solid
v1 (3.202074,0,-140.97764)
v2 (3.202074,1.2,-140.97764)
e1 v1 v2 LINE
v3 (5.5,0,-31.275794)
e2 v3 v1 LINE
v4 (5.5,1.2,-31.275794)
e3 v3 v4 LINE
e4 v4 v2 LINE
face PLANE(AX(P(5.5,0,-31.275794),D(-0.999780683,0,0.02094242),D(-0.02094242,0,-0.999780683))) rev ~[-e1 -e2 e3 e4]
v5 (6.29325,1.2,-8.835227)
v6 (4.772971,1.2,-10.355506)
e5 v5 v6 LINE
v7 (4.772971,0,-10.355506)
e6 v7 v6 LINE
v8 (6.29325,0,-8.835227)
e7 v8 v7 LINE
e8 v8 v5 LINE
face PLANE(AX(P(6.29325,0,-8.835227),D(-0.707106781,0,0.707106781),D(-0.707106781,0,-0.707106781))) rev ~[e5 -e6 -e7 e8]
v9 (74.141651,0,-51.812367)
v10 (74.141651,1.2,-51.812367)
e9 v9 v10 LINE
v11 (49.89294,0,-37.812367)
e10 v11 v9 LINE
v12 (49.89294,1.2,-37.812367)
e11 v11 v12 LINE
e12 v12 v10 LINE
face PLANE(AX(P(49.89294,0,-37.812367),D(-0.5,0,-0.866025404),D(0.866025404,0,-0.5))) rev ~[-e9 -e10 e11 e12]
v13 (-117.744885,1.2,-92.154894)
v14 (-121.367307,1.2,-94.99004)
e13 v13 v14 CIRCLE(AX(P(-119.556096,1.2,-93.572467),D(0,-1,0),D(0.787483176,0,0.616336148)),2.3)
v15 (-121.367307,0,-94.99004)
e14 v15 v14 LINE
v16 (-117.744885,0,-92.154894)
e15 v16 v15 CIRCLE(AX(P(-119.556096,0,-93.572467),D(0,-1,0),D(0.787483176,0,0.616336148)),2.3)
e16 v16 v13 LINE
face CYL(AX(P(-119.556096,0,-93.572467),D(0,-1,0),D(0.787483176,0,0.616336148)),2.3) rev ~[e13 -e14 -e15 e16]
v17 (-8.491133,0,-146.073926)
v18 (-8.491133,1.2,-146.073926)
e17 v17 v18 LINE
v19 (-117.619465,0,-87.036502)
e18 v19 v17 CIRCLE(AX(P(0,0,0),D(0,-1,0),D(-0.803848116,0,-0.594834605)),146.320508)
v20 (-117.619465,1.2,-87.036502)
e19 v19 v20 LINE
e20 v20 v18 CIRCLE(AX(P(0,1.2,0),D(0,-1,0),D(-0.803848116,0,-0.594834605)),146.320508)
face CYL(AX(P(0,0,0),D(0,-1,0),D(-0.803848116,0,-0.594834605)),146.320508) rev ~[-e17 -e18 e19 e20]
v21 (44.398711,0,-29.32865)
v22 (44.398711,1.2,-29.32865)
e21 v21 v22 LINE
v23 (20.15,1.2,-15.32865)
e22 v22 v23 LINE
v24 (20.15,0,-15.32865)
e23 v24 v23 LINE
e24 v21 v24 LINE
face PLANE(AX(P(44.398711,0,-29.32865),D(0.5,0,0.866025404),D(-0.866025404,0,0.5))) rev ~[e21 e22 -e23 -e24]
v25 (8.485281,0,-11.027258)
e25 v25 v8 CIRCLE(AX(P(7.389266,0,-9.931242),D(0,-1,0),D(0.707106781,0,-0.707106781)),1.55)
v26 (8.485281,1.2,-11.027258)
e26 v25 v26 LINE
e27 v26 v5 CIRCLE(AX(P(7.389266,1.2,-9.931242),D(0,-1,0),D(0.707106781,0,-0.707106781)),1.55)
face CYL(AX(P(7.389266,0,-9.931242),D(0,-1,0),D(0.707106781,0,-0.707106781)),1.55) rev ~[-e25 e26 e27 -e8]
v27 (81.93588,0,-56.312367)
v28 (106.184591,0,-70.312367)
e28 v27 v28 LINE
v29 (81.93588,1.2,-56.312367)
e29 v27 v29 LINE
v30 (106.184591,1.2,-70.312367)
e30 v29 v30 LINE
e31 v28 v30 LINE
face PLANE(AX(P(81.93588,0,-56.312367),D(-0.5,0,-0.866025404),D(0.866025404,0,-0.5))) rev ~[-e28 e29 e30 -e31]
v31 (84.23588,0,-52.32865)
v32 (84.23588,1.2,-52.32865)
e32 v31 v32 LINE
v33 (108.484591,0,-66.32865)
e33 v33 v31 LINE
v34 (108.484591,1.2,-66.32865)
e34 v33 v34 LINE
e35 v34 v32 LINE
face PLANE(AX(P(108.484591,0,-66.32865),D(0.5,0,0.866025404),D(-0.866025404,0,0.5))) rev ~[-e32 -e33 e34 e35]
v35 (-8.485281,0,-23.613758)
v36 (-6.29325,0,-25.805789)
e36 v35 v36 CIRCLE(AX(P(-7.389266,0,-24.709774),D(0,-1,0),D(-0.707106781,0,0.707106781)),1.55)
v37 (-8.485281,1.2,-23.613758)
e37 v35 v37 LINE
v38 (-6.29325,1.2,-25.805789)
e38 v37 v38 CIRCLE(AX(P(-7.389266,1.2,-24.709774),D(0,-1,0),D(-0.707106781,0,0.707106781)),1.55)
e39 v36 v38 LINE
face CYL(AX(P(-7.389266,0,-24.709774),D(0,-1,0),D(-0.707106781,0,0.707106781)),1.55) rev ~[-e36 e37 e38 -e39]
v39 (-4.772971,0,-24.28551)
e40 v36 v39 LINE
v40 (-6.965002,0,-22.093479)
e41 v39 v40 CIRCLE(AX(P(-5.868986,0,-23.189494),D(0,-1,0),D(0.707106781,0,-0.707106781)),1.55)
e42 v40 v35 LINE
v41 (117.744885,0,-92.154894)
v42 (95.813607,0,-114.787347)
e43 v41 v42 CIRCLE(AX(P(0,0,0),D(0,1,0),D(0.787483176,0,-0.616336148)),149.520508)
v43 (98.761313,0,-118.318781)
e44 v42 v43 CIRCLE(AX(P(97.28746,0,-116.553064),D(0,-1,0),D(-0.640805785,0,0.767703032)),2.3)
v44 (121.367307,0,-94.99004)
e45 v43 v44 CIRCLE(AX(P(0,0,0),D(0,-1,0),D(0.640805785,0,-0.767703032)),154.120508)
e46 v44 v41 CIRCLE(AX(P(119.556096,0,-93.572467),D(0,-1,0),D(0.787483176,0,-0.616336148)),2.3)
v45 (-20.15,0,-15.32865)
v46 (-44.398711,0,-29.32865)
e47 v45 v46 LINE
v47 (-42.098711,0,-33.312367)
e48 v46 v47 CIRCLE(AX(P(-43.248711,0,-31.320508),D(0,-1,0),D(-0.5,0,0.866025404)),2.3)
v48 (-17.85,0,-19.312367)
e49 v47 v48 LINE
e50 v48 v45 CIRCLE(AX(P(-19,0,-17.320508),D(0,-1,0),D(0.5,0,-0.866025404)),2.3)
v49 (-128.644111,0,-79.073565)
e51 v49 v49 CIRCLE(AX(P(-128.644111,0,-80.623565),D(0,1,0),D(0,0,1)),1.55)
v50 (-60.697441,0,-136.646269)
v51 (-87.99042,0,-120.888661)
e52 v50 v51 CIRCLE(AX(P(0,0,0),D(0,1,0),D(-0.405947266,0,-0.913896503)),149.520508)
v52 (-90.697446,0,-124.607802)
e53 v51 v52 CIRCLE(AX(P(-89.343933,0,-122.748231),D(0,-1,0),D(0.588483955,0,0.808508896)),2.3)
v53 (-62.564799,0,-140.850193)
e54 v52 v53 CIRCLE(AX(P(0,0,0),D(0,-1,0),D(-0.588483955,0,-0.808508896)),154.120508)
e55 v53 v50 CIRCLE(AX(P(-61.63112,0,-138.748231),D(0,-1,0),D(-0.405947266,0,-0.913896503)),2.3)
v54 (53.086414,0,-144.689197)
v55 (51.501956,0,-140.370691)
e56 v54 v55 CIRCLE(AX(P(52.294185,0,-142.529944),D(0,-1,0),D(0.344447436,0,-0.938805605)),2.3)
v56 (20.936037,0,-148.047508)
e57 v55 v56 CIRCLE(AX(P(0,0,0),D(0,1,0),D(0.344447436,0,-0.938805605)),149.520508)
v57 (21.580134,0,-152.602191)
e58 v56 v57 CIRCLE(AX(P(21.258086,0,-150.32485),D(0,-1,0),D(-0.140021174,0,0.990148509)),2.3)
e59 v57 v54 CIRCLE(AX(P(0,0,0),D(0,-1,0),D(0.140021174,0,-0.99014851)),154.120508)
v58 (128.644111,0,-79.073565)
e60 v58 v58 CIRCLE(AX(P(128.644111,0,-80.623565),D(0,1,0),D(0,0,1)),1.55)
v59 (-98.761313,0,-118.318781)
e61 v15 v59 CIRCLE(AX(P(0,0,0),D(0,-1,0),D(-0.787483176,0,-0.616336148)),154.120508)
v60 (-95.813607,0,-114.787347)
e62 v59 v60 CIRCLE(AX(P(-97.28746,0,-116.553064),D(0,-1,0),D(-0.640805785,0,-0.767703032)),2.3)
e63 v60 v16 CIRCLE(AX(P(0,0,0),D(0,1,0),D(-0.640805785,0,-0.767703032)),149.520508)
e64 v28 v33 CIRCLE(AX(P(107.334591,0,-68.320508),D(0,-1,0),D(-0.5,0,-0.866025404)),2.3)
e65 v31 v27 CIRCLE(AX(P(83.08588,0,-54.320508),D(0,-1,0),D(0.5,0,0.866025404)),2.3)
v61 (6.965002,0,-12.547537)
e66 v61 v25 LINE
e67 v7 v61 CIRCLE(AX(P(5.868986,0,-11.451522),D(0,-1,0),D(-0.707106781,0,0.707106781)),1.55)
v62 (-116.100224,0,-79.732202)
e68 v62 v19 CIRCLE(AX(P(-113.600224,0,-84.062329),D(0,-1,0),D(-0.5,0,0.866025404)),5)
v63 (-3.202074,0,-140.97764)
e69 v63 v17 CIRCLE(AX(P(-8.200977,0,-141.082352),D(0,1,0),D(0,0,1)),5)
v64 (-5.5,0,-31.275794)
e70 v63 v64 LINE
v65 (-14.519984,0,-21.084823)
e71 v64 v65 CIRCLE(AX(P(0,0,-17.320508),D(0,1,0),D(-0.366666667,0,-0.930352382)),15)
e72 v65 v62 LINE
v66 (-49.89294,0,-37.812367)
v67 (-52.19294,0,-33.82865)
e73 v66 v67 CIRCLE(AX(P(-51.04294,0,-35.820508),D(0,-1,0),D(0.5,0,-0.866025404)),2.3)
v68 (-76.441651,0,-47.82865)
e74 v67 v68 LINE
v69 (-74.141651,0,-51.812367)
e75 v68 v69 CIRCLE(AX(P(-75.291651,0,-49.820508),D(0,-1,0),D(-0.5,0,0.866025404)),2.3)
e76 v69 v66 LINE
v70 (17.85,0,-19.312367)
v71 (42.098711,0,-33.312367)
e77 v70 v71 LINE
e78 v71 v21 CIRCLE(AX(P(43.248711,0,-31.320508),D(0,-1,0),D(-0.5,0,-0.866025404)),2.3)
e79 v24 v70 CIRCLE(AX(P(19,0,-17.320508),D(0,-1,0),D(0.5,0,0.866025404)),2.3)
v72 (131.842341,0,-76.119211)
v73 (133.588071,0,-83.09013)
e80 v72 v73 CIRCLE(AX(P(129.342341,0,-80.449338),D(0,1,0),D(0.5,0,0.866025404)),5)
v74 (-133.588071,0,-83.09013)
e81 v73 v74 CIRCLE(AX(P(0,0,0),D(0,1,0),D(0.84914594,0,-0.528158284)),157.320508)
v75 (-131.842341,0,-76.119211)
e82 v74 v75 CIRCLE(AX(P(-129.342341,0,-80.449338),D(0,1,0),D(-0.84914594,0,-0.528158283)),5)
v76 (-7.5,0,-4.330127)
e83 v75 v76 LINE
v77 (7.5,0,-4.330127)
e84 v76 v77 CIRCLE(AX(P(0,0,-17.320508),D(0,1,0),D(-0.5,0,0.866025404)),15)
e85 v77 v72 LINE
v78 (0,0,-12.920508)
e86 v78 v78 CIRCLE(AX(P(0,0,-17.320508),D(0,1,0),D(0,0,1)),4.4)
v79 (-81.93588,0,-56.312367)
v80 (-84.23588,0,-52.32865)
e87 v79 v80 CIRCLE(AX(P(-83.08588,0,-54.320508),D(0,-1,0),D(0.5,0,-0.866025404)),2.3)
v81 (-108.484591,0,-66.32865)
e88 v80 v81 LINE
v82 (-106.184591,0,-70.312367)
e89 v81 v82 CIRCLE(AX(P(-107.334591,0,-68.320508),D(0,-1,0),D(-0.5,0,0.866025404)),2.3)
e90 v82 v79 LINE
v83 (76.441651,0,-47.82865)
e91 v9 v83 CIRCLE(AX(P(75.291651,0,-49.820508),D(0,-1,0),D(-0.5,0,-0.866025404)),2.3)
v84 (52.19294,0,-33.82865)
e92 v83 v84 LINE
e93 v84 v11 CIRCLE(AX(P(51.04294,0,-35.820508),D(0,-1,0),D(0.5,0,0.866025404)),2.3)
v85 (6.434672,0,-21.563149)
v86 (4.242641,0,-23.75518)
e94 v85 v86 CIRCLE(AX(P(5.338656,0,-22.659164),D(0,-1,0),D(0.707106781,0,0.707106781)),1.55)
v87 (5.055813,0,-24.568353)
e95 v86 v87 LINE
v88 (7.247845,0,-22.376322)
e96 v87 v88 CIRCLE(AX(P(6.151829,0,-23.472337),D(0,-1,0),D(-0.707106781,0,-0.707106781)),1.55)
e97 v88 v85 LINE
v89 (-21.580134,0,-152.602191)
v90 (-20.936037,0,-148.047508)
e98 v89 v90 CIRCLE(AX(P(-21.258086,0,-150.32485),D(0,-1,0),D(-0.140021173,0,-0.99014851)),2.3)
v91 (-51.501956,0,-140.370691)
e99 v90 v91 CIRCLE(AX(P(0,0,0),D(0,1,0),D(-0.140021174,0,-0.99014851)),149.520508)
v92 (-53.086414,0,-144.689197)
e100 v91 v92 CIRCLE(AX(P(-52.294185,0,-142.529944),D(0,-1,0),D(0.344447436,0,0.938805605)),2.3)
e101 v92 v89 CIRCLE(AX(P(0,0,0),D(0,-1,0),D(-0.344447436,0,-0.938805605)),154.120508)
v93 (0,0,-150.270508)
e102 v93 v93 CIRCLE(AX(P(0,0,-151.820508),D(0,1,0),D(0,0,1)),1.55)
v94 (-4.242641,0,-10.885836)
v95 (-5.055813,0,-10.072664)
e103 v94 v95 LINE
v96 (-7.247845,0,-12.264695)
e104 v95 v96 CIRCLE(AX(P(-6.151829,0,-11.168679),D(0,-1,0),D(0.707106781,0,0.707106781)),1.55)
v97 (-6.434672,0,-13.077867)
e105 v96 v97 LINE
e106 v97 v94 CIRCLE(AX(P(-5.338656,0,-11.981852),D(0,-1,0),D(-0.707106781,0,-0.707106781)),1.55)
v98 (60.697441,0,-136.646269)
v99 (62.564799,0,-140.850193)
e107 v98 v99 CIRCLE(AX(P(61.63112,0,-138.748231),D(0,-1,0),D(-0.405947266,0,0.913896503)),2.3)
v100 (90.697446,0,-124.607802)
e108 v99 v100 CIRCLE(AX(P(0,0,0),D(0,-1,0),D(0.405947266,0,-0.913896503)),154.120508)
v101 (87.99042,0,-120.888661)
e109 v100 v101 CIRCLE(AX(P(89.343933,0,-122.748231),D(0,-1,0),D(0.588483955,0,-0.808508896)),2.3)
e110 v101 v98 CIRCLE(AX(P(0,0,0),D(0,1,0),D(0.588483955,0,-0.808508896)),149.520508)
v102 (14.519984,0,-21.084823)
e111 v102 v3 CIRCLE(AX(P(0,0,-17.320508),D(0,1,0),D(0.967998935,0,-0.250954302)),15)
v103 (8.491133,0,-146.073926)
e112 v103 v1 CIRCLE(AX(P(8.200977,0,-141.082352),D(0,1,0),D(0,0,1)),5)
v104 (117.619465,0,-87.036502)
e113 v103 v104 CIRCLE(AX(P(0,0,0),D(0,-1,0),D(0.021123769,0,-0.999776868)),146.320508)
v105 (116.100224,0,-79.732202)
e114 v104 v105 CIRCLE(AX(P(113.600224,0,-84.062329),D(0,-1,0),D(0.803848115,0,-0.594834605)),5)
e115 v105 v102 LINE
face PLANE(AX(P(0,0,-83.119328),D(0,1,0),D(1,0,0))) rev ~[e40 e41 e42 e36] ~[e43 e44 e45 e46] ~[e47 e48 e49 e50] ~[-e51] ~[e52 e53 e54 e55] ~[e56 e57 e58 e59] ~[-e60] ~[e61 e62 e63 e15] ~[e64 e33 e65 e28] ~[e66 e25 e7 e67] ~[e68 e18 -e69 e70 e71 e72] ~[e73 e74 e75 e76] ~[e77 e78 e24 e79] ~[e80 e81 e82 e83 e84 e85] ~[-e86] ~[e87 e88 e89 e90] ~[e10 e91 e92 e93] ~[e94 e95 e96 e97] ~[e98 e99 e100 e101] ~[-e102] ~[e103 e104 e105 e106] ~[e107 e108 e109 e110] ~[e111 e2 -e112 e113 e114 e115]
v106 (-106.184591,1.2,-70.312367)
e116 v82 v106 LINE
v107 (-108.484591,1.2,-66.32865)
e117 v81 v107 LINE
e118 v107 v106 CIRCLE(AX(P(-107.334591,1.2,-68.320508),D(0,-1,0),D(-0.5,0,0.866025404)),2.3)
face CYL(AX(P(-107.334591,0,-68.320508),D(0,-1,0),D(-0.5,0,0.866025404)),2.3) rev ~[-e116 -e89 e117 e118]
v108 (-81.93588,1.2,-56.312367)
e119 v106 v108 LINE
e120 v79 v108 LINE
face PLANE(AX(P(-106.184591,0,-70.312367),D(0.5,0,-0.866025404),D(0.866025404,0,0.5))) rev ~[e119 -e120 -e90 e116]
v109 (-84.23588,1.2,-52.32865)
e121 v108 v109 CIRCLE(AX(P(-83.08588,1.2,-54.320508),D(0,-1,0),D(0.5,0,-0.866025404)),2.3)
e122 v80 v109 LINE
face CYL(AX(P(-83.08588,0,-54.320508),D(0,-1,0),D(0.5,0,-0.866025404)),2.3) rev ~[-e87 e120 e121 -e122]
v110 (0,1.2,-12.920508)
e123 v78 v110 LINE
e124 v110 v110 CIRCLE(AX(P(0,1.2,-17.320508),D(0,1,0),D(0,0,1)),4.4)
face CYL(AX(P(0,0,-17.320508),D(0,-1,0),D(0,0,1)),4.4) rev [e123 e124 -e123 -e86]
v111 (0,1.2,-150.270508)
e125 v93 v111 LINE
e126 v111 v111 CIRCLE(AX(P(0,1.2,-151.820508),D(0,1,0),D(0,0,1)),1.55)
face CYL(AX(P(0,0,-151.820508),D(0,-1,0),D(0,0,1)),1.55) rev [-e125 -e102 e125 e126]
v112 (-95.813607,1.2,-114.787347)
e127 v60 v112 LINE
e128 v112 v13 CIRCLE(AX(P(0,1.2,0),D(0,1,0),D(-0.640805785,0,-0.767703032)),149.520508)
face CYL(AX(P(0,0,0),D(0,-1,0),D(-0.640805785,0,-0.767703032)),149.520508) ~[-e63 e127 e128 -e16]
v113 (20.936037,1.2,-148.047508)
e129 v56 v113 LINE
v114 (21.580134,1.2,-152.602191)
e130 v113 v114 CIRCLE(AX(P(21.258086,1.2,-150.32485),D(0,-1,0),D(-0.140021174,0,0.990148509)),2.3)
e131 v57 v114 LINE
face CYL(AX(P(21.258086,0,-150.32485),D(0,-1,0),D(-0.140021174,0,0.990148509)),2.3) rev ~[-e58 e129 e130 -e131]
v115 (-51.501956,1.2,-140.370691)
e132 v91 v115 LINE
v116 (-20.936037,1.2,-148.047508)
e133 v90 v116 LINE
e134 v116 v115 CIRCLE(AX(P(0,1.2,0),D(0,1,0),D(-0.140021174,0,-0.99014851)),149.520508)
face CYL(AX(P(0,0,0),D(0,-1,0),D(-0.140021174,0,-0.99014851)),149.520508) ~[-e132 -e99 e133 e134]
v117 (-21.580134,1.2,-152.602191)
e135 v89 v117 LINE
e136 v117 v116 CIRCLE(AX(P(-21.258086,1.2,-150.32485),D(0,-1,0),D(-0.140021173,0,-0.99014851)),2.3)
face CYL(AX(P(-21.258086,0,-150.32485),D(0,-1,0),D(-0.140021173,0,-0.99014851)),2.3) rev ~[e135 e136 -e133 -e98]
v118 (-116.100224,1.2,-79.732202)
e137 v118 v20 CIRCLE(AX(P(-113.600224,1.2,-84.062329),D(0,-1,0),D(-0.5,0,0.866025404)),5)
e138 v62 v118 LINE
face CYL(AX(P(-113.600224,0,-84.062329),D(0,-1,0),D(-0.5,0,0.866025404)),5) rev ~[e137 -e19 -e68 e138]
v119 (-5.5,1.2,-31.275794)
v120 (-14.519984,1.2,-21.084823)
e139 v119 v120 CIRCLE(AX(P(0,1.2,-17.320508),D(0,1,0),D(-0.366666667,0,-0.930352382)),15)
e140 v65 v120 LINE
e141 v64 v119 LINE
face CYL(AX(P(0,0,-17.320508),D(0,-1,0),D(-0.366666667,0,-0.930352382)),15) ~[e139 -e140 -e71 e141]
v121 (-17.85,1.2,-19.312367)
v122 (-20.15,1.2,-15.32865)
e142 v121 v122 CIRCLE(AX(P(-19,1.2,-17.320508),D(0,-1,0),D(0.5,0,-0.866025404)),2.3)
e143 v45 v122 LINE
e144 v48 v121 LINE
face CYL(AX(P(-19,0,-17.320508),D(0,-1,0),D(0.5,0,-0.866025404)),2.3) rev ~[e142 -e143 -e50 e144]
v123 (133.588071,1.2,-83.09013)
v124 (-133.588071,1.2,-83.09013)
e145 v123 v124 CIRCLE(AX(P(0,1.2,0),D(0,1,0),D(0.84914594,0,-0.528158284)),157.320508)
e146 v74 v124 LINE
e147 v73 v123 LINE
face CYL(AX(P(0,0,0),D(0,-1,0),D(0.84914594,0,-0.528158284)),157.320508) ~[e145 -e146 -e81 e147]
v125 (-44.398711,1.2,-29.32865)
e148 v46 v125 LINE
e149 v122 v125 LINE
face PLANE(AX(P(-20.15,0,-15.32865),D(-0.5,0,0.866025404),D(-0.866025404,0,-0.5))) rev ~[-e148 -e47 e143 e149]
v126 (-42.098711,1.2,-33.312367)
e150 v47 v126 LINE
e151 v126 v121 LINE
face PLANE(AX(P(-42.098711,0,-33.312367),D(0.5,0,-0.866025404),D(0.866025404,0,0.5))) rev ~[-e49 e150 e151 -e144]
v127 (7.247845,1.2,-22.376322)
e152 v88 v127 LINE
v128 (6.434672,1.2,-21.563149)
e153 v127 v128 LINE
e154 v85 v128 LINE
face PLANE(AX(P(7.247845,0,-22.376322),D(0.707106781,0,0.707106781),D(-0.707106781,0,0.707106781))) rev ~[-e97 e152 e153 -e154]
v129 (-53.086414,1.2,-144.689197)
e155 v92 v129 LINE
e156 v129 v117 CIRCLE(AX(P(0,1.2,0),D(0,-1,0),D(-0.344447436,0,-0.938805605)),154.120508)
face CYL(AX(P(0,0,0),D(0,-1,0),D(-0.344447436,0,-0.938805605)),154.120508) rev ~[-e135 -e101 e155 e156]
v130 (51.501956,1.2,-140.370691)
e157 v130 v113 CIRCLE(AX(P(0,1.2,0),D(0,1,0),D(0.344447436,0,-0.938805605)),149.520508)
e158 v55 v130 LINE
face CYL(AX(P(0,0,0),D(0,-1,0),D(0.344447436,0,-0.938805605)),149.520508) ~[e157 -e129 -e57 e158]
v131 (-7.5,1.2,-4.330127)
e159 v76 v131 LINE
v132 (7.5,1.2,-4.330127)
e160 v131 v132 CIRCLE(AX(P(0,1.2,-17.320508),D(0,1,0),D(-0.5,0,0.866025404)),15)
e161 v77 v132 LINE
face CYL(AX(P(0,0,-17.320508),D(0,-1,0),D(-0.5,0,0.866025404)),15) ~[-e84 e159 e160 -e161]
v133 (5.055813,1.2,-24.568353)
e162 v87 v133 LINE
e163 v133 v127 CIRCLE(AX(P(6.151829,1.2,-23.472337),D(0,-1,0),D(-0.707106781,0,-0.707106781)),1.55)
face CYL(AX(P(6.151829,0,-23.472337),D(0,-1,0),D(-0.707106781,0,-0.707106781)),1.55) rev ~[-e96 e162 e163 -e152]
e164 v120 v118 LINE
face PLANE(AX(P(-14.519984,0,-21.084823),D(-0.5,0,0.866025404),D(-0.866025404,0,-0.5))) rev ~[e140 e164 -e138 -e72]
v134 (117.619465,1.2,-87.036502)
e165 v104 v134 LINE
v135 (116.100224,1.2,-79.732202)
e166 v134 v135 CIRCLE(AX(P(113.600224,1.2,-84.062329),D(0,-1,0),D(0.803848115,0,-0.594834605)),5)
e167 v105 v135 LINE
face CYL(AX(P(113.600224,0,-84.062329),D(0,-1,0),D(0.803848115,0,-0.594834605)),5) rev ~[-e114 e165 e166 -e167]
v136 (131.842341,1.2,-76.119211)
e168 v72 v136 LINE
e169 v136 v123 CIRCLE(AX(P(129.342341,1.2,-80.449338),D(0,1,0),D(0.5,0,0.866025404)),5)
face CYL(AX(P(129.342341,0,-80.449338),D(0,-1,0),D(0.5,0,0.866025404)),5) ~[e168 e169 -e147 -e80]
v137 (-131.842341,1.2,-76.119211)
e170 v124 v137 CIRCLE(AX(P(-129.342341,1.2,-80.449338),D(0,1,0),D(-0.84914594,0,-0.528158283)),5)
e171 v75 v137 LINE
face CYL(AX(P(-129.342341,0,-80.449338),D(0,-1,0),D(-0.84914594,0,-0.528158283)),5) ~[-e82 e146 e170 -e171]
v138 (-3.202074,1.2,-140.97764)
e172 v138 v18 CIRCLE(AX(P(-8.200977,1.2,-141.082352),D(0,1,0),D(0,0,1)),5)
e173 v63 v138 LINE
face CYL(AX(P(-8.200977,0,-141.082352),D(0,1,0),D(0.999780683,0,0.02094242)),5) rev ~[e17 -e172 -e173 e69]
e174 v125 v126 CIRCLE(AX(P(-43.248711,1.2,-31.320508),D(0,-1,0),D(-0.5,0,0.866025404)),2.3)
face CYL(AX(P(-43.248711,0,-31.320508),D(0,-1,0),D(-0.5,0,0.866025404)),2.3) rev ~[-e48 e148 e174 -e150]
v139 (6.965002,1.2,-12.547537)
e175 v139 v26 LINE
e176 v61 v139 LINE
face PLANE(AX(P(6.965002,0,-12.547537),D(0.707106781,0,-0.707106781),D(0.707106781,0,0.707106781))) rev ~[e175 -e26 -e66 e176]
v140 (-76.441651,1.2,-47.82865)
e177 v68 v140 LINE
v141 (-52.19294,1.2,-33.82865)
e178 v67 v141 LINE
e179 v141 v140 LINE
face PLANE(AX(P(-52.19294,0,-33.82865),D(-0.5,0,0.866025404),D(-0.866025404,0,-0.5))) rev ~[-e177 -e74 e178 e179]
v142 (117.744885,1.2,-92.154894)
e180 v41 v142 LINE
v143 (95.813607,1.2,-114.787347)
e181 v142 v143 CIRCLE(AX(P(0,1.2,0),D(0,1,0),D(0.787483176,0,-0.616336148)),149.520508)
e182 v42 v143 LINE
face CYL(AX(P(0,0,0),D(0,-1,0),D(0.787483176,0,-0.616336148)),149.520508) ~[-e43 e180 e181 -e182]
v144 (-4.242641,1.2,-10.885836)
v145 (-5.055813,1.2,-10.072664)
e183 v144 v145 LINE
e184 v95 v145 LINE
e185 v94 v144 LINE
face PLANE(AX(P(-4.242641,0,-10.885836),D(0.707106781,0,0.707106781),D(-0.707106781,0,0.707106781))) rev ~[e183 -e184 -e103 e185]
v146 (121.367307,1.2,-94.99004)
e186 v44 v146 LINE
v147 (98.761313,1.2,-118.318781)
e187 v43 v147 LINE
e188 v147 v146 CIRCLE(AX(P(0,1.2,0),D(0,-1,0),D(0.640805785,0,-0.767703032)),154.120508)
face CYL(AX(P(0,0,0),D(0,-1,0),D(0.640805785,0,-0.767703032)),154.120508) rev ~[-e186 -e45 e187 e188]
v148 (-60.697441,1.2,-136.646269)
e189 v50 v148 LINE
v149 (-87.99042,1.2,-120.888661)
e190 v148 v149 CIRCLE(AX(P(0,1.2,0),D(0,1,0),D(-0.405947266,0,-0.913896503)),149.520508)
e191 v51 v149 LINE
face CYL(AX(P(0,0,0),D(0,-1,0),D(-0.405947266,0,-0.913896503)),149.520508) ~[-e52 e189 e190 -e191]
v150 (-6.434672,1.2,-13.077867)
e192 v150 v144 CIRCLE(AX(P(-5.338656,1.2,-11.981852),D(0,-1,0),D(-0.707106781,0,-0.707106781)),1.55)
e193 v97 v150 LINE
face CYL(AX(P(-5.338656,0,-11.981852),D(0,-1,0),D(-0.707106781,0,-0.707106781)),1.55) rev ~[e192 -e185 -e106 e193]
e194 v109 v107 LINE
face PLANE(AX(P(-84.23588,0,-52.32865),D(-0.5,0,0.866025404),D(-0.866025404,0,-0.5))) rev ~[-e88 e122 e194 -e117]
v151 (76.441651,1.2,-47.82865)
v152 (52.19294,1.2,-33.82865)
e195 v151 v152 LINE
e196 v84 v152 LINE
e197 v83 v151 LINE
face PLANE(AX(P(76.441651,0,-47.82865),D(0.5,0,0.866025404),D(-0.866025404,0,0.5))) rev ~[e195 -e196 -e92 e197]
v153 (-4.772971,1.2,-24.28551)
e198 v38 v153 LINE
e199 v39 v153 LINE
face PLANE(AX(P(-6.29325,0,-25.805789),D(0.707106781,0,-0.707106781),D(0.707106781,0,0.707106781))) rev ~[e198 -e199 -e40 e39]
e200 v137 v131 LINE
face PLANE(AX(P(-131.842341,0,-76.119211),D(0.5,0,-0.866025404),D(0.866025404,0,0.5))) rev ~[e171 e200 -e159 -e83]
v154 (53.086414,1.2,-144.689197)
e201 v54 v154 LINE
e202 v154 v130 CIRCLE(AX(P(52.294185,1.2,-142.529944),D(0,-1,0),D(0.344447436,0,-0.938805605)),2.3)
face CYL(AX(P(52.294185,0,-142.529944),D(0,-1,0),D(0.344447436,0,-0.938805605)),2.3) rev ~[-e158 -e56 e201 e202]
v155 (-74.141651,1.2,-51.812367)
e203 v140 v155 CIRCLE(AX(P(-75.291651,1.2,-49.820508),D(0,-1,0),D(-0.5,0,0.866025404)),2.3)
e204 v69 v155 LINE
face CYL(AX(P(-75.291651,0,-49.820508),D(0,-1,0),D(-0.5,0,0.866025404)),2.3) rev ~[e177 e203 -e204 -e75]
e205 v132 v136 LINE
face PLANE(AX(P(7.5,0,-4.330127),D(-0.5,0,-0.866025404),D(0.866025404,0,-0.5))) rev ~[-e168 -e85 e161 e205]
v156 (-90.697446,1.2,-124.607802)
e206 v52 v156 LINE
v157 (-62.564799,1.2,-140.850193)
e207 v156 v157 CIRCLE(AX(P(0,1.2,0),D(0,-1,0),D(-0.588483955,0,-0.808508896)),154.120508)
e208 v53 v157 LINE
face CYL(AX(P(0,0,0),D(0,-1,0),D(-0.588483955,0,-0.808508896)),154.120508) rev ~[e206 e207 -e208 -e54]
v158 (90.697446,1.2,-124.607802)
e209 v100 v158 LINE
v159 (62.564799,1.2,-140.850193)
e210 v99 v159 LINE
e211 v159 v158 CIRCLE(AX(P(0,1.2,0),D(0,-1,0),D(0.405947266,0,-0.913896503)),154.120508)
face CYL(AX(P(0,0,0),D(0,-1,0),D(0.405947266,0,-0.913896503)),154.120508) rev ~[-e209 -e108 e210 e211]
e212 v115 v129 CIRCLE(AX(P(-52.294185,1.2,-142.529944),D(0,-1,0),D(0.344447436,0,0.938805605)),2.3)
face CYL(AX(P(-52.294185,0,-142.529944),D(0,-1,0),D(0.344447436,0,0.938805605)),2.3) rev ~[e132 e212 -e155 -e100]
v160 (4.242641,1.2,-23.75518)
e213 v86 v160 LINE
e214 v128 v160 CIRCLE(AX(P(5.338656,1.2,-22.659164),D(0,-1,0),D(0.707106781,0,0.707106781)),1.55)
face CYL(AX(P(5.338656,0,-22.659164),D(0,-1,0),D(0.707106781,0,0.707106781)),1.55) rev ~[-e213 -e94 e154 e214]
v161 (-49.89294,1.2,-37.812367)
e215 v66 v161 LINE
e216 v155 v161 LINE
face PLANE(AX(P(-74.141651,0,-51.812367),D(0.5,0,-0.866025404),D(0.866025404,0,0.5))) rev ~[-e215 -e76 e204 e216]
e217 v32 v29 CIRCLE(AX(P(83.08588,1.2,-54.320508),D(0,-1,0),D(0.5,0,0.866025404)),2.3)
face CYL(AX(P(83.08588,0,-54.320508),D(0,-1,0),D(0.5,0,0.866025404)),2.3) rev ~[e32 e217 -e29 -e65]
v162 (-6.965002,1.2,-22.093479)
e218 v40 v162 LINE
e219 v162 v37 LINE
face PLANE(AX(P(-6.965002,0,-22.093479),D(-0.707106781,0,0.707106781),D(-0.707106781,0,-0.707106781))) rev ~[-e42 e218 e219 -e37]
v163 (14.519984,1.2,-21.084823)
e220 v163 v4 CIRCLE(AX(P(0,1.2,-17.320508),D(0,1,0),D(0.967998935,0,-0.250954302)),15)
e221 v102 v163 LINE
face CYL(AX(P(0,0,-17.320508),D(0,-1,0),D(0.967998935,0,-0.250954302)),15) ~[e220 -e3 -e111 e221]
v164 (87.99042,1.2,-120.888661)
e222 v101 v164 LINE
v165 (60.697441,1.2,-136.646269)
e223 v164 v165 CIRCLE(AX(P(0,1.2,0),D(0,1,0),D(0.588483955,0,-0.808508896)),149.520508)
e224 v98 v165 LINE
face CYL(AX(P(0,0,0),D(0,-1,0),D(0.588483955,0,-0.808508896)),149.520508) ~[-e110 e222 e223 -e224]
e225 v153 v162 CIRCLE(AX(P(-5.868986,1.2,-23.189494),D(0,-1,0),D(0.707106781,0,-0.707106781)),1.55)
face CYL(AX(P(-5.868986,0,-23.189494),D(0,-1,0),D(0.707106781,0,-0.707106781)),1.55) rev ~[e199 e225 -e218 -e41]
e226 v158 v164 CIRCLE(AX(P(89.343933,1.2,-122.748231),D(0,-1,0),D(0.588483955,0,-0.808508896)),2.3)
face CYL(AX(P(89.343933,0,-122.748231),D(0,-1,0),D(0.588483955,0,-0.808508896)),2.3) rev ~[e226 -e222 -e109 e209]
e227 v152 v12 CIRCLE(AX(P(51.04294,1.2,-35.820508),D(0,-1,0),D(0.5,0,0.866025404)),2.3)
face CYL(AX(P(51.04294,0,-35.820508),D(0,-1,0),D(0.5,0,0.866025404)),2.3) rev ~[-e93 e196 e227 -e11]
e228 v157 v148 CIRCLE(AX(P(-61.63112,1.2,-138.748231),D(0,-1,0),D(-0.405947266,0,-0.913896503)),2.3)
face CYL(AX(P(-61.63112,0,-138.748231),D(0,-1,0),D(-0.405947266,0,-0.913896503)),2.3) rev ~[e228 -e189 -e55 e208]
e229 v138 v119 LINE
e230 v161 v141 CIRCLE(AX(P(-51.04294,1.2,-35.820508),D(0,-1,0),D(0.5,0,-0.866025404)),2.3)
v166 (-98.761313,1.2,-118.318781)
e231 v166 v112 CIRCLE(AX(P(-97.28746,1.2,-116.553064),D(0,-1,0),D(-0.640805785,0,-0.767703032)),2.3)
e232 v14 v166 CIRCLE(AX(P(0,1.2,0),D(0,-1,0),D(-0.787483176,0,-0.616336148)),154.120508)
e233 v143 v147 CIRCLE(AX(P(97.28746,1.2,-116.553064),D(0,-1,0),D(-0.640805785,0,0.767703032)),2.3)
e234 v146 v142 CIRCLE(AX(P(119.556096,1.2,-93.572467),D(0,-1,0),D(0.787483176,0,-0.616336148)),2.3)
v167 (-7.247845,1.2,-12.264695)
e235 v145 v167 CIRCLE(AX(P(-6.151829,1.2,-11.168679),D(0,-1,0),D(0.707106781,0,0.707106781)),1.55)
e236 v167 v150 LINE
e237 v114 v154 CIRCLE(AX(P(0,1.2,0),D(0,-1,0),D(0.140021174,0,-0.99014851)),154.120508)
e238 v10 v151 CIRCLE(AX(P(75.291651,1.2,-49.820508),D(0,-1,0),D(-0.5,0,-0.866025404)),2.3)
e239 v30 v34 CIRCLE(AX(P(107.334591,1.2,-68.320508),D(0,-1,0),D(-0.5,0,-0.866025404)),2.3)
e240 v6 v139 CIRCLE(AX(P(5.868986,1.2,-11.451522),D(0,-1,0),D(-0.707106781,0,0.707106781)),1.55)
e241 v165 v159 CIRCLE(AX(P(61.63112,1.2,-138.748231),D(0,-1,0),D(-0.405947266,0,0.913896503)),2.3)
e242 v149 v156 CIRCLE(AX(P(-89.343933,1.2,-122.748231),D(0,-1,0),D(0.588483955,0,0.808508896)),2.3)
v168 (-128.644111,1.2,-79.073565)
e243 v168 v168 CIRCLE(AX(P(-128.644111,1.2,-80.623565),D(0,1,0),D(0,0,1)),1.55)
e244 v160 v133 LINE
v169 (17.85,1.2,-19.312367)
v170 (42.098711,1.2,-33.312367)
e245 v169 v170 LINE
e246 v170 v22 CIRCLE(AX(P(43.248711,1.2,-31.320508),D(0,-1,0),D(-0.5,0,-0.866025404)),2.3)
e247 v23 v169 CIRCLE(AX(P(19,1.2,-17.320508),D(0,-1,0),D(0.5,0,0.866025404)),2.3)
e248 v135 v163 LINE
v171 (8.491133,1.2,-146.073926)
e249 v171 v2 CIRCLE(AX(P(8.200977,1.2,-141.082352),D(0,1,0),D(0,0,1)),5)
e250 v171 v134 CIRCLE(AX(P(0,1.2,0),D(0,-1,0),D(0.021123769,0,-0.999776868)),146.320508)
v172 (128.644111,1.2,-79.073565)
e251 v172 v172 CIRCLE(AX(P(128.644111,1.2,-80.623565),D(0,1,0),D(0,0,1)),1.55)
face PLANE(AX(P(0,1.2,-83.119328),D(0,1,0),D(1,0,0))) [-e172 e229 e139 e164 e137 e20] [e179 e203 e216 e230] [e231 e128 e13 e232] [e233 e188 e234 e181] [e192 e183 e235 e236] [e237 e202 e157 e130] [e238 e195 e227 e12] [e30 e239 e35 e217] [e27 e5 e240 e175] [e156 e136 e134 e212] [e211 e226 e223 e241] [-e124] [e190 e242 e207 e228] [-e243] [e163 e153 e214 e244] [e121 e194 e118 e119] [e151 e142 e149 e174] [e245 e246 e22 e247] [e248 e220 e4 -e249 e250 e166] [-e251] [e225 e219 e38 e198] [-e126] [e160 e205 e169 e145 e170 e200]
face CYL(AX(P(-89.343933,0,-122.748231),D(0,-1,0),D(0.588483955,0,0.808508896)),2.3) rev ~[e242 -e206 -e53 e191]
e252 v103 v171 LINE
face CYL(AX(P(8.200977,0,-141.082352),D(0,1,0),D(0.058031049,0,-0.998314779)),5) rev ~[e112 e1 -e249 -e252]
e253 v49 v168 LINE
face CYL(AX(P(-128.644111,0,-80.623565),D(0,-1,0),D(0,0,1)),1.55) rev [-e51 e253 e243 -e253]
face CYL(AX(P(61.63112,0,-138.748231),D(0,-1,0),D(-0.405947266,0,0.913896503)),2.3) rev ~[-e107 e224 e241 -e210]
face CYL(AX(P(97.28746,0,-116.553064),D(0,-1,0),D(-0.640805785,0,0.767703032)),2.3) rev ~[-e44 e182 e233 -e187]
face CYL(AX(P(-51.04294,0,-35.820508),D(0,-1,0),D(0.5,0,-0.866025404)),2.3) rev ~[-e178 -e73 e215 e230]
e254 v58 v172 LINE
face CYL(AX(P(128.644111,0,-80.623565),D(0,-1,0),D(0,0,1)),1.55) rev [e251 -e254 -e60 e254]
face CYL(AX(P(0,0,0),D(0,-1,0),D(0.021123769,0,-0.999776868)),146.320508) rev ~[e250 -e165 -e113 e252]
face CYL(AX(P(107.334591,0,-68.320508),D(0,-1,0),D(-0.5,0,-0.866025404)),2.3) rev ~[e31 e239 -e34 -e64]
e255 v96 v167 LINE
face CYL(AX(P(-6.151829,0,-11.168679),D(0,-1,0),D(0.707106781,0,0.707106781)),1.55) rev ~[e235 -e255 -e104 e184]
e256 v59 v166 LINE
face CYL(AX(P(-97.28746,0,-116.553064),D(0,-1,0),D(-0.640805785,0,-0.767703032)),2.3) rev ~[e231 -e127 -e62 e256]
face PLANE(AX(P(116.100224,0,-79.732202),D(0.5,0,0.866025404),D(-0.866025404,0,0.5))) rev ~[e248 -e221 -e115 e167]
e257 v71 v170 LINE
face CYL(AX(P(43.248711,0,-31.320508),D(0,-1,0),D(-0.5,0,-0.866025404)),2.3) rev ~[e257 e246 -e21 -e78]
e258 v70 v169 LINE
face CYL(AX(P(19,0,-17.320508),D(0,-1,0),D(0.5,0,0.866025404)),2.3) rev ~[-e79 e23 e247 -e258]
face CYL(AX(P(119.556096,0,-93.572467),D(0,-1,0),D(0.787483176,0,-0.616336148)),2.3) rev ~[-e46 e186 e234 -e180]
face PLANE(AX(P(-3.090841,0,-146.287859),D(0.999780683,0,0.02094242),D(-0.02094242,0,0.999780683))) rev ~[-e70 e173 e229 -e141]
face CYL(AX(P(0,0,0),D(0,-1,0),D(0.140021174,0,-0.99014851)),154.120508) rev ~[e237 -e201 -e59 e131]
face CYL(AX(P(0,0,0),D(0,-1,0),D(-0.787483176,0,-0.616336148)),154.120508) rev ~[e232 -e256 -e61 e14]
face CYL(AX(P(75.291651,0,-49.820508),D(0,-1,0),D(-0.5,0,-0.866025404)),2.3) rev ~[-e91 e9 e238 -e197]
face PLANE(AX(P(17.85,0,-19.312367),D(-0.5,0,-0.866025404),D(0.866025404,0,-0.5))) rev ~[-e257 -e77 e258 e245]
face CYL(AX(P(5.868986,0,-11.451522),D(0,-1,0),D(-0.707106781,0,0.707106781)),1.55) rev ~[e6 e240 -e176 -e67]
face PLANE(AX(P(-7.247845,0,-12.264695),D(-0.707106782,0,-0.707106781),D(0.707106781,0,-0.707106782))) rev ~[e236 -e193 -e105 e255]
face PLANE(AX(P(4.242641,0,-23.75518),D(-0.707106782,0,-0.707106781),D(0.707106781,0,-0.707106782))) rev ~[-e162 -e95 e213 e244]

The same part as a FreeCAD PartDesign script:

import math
import FreeCAD as App
import Part
import Sketcher
from FreeCAD import Vector
Q = App.Units.Quantity


def edges_at(feature, points):
    """Names of the edges that pass closest to the given points."""
    edges = feature.Shape.Edges
    near = lambda p: min(range(len(edges)), key=lambda i: edges[i].distToShape(Part.Vertex(*p))[0])
    return sorted({f"Edge{near(p) + 1}" for p in points})

doc = App.newDocument("Part")
params = doc.addObject("Spreadsheet::Sheet", "Params")
for row, (alias, value) in enumerate([
    ("sketch1_radius", "15 mm"),
    ("sketch1_radius2", "5 mm"),
    ("sketch1_diameter", "3.1 mm"),
    ("sketch1_diameter2", "8.8 mm"),
    ("sketch1_radius3", "2.3 mm"),
    ("pad1_length", "1.2 mm"),
    ("fillet_radius", "5 mm"),
], start=1):
    params.set(f"A{row}", alias)
    params.set(f"B{row}", "=" + value)
    params.setAlias(f"B{row}", alias)

body = doc.addObject("PartDesign::Body", "Body")

sketch1 = doc.addObject("Sketcher::SketchObject", "Sketch")
body.addObject(sketch1)
sketch1.AttachmentSupport = (doc.XZ_Plane, [""])
sketch1.MapMode = "FlatFace"
sketch1.addGeometry([
    Part.ArcOfCircle(Part.Circle(Vector(0, -17.3, 0), Vector(0, 0, 1), 15), math.radians(60), math.radians(120)),
    Part.LineSegment(Vector(7.5, -4.3, 0), Vector(131.8, -76.1, 0)),
    Part.ArcOfCircle(Part.Circle(Vector(129.3, -80.4, 0), Vector(0, 0, 1), 5), math.radians(-32), math.radians(60)),
    Part.ArcOfCircle(Part.Circle(Vector(0, 0, 0), Vector(0, 0, 1), 157.3), math.radians(-148), math.radians(-32)),
    Part.ArcOfCircle(Part.Circle(Vector(-129.3, -80.4, 0), Vector(0, 0, 1), 5), math.radians(120), math.radians(212)),
    Part.LineSegment(Vector(-131.8, -76.1, 0), Vector(-7.5, -4.3, 0)),
    Part.ArcOfCircle(Part.Circle(Vector(-6.2, -11.2, 0), Vector(0, 0, 1), 1.6), math.radians(45), math.radians(225)),
    Part.LineSegment(Vector(-7.2, -12.3, 0), Vector(-6.4, -13.1, 0)),
    Part.ArcOfCircle(Part.Circle(Vector(-5.3, -12, 0), Vector(0, 0, 1), 1.6), math.radians(-135), math.radians(45)),
    Part.LineSegment(Vector(-4.2, -10.9, 0), Vector(-5.1, -10.1, 0)),
    Part.LineSegment(Vector(-20.1, -15.3, 0), Vector(-44.4, -29.3, 0)),
    Part.ArcOfCircle(Part.Circle(Vector(-43.2, -31.3, 0), Vector(0, 0, 1), 2.3), math.radians(120), math.radians(300)),
    Part.LineSegment(Vector(-42.1, -33.3, 0), Vector(-17.9, -19.3, 0)),
    Part.ArcOfCircle(Part.Circle(Vector(-19, -17.3, 0), Vector(0, 0, 1), 2.3), math.radians(-60), math.radians(120)),
    Part.LineSegment(Vector(-7, -22.1, 0), Vector(-8.5, -23.6, 0)),
    Part.ArcOfCircle(Part.Circle(Vector(-7.4, -24.7, 0), Vector(0, 0, 1), 1.6), math.radians(135), math.radians(315)),
    Part.LineSegment(Vector(-6.3, -25.8, 0), Vector(-4.8, -24.3, 0)),
    Part.ArcOfCircle(Part.Circle(Vector(-5.9, -23.2, 0), Vector(0, 0, 1), 1.6), math.radians(-45), math.radians(135)),
    Part.LineSegment(Vector(-52.2, -33.8, 0), Vector(-76.4, -47.8, 0)),
    Part.ArcOfCircle(Part.Circle(Vector(-75.3, -49.8, 0), Vector(0, 0, 1), 2.3), math.radians(120), math.radians(300)),
    Part.LineSegment(Vector(-74.1, -51.8, 0), Vector(-49.9, -37.8, 0)),
    Part.ArcOfCircle(Part.Circle(Vector(-51, -35.8, 0), Vector(0, 0, 1), 2.3), math.radians(-60), math.radians(120)),
    Part.LineSegment(Vector(-84.2, -52.3, 0), Vector(-108.5, -66.3, 0)),
    Part.ArcOfCircle(Part.Circle(Vector(-107.3, -68.3, 0), Vector(0, 0, 1), 2.3), math.radians(120), math.radians(300)),
    Part.LineSegment(Vector(-106.2, -70.3, 0), Vector(-81.9, -56.3, 0)),
    Part.ArcOfCircle(Part.Circle(Vector(-83.1, -54.3, 0), Vector(0, 0, 1), 2.3), math.radians(-60), math.radians(120)),
    Part.Circle(Vector(-128.6, -80.6, 0), Vector(0, 0, 1), 1.6),
    Part.ArcOfCircle(Part.Circle(Vector(5.9, -11.5, 0), Vector(0, 0, 1), 1.6), math.radians(135), math.radians(315)),
    Part.LineSegment(Vector(7, -12.5, 0), Vector(8.5, -11, 0)),
    Part.ArcOfCircle(Part.Circle(Vector(7.4, -9.9, 0), Vector(0, 0, 1), 1.6), math.radians(-45), math.radians(135)),
    Part.LineSegment(Vector(6.3, -8.8, 0), Vector(4.8, -10.4, 0)),
    Part.Circle(Vector(0, -17.3, 0), Vector(0, 0, 1), 4.4),
    Part.LineSegment(Vector(7.2, -22.4, 0), Vector(6.4, -21.6, 0)),
    Part.ArcOfCircle(Part.Circle(Vector(5.3, -22.7, 0), Vector(0, 0, 1), 1.6), math.radians(45), math.radians(225)),
    Part.LineSegment(Vector(4.2, -23.8, 0), Vector(5.1, -24.6, 0)),
    Part.ArcOfCircle(Part.Circle(Vector(6.2, -23.5, 0), Vector(0, 0, 1), 1.6), math.radians(-135), math.radians(45)),
    Part.ArcOfCircle(Part.Circle(Vector(19, -17.3, 0), Vector(0, 0, 1), 2.3), math.radians(60), math.radians(240)),
    Part.LineSegment(Vector(17.9, -19.3, 0), Vector(42.1, -33.3, 0)),
    Part.ArcOfCircle(Part.Circle(Vector(43.2, -31.3, 0), Vector(0, 0, 1), 2.3), math.radians(-120), math.radians(60)),
    Part.LineSegment(Vector(44.4, -29.3, 0), Vector(20.1, -15.3, 0)),
    Part.ArcOfCircle(Part.Circle(Vector(51, -35.8, 0), Vector(0, 0, 1), 2.3), math.radians(60), math.radians(240)),
    Part.LineSegment(Vector(49.9, -37.8, 0), Vector(74.1, -51.8, 0)),
    Part.ArcOfCircle(Part.Circle(Vector(75.3, -49.8, 0), Vector(0, 0, 1), 2.3), math.radians(-120), math.radians(60)),
    Part.LineSegment(Vector(76.4, -47.8, 0), Vector(52.2, -33.8, 0)),
    Part.ArcOfCircle(Part.Circle(Vector(83.1, -54.3, 0), Vector(0, 0, 1), 2.3), math.radians(60), math.radians(240)),
    Part.LineSegment(Vector(81.9, -56.3, 0), Vector(106.2, -70.3, 0)),
    Part.ArcOfCircle(Part.Circle(Vector(107.3, -68.3, 0), Vector(0, 0, 1), 2.3), math.radians(-120), math.radians(60)),
    Part.LineSegment(Vector(108.5, -66.3, 0), Vector(84.2, -52.3, 0)),
    Part.Circle(Vector(128.6, -80.6, 0), Vector(0, 0, 1), 1.6),
    Part.ArcOfCircle(Part.Circle(Vector(-119.6, -93.6, 0), Vector(0, 0, 1), 2.3), math.radians(38), math.radians(218)),
    Part.ArcOfCircle(Part.Circle(Vector(0, 0, 0), Vector(0, 0, 1), 154.1), math.radians(-141.95), math.radians(-129.85)),
    Part.ArcOfCircle(Part.Circle(Vector(-97.3, -116.6, 0), Vector(0, 0, 1), 2.3), math.radians(-130), math.radians(50)),
    Part.ArcOfCircle(Part.Circle(Vector(0, 0, 0), Vector(0, 0, 1), 149.5), math.radians(-141.95), math.radians(-129.85)),
    Part.ArcOfCircle(Part.Circle(Vector(0, -17.3, 0), Vector(0, 0, 1), 15), math.radians(-165), math.radians(-112)),
    Part.LineSegment(Vector(-14.5, -21.1, 0), Vector(-116.1, -79.7, 0)),
    Part.ArcOfCircle(Part.Circle(Vector(-113.6, -84.1, 0), Vector(0, 0, 1), 5), math.radians(120), math.radians(217)),
    Part.ArcOfCircle(Part.Circle(Vector(0, 0, 0), Vector(0, 0, 1), 146.3), math.radians(-143), math.radians(-91)),
    Part.LineSegment(Vector(-3.1, -146.3, 0), Vector(-5.5, -31.3, 0)),
    Part.ArcOfCircle(Part.Circle(Vector(-89.3, -122.7, 0), Vector(0, 0, 1), 2.3), math.radians(54), math.radians(234)),
    Part.ArcOfCircle(Part.Circle(Vector(0, 0, 0), Vector(0, 0, 1), 154.1), math.radians(-126.05), math.radians(-113.95)),
    Part.ArcOfCircle(Part.Circle(Vector(-61.6, -138.7, 0), Vector(0, 0, 1), 2.3), math.radians(-114), math.radians(66)),
    Part.ArcOfCircle(Part.Circle(Vector(0, 0, 0), Vector(0, 0, 1), 149.5), math.radians(-126.05), math.radians(-113.95)),
    Part.ArcOfCircle(Part.Circle(Vector(-52.3, -142.5, 0), Vector(0, 0, 1), 2.3), math.radians(70), math.radians(250)),
    Part.ArcOfCircle(Part.Circle(Vector(0, 0, 0), Vector(0, 0, 1), 154.1), math.radians(-110.15), math.radians(-98.05)),
    Part.ArcOfCircle(Part.Circle(Vector(-21.3, -150.3, 0), Vector(0, 0, 1), 2.3), math.radians(-98), math.radians(82)),
    Part.ArcOfCircle(Part.Circle(Vector(0, 0, 0), Vector(0, 0, 1), 149.5), math.radians(-110.15), math.radians(-98.05)),
    Part.LineSegment(Vector(116.1, -79.7, 0), Vector(14.5, -21.1, 0)),
    Part.ArcOfCircle(Part.Circle(Vector(0, -17.3, 0), Vector(0, 0, 1), 15), math.radians(-68), math.radians(-15)),
    Part.LineSegment(Vector(5.5, -31.3, 0), Vector(3.1, -146.3, 0)),
    Part.ArcOfCircle(Part.Circle(Vector(0, 0, 0), Vector(0, 0, 1), 146.3), math.radians(-89), math.radians(-37)),
    Part.ArcOfCircle(Part.Circle(Vector(113.6, -84.1, 0), Vector(0, 0, 1), 5), math.radians(-37), math.radians(60)),
    Part.ArcOfCircle(Part.Circle(Vector(0, 0, 0), Vector(0, 0, 1), 149.5), math.radians(-50.15), math.radians(-38.05)),
    Part.ArcOfCircle(Part.Circle(Vector(97.3, -116.6, 0), Vector(0, 0, 1), 2.3), math.radians(130), math.radians(310)),
    Part.ArcOfCircle(Part.Circle(Vector(0, 0, 0), Vector(0, 0, 1), 154.1), math.radians(-50.15), math.radians(-38.05)),
    Part.ArcOfCircle(Part.Circle(Vector(119.6, -93.6, 0), Vector(0, 0, 1), 2.3), math.radians(-38), math.radians(142)),
    Part.Circle(Vector(0, -151.8, 0), Vector(0, 0, 1), 1.6),
    Part.ArcOfCircle(Part.Circle(Vector(0, 0, 0), Vector(0, 0, 1), 149.5), math.radians(-81.95), math.radians(-69.85)),
    Part.ArcOfCircle(Part.Circle(Vector(21.3, -150.3, 0), Vector(0, 0, 1), 2.3), math.radians(98), math.radians(278)),
    Part.ArcOfCircle(Part.Circle(Vector(0, 0, 0), Vector(0, 0, 1), 154.1), math.radians(-81.95), math.radians(-69.85)),
    Part.ArcOfCircle(Part.Circle(Vector(52.3, -142.5, 0), Vector(0, 0, 1), 2.3), math.radians(-70), math.radians(110)),
    Part.ArcOfCircle(Part.Circle(Vector(89.3, -122.7, 0), Vector(0, 0, 1), 2.3), math.radians(-54), math.radians(126)),
    Part.ArcOfCircle(Part.Circle(Vector(0, 0, 0), Vector(0, 0, 1), 149.5), math.radians(-66.05), math.radians(-53.95)),
    Part.ArcOfCircle(Part.Circle(Vector(61.6, -138.7, 0), Vector(0, 0, 1), 2.3), math.radians(114), math.radians(294)),
    Part.ArcOfCircle(Part.Circle(Vector(0, 0, 0), Vector(0, 0, 1), 154.1), math.radians(-66.05), math.radians(-53.95)),
], False)
sketch1.addConstraint([
    Sketcher.Constraint("Tangent", 0, 1, 1, 1),
    Sketcher.Constraint("Tangent", 1, 2, 2, 2),
    Sketcher.Constraint("Tangent", 2, 1, 3, 2),
    Sketcher.Constraint("Tangent", 3, 1, 4, 2),
    Sketcher.Constraint("Tangent", 4, 1, 5, 1),
    Sketcher.Constraint("Tangent", 5, 2, 0, 2),
    Sketcher.Constraint("Tangent", 6, 2, 7, 1),
    Sketcher.Constraint("Tangent", 7, 2, 8, 1),
    Sketcher.Constraint("Tangent", 8, 2, 9, 1),
    Sketcher.Constraint("Tangent", 9, 2, 6, 1),
    Sketcher.Constraint("Tangent", 10, 2, 11, 1),
    Sketcher.Constraint("Tangent", 11, 2, 12, 1),
    Sketcher.Constraint("Tangent", 12, 2, 13, 1),
    Sketcher.Constraint("Tangent", 13, 2, 10, 1),
    Sketcher.Constraint("Tangent", 14, 2, 15, 1),
    Sketcher.Constraint("Tangent", 15, 2, 16, 1),
    Sketcher.Constraint("Tangent", 16, 2, 17, 1),
    Sketcher.Constraint("Tangent", 17, 2, 14, 1),
    Sketcher.Constraint("Tangent", 18, 2, 19, 1),
    Sketcher.Constraint("Tangent", 19, 2, 20, 1),
    Sketcher.Constraint("Tangent", 20, 2, 21, 1),
    Sketcher.Constraint("Tangent", 21, 2, 18, 1),
    Sketcher.Constraint("Tangent", 22, 2, 23, 1),
    Sketcher.Constraint("Tangent", 23, 2, 24, 1),
    Sketcher.Constraint("Tangent", 24, 2, 25, 1),
    Sketcher.Constraint("Tangent", 25, 2, 22, 1),
    Sketcher.Constraint("Tangent", 27, 2, 28, 1),
    Sketcher.Constraint("Tangent", 28, 2, 29, 1),
    Sketcher.Constraint("Tangent", 29, 2, 30, 1),
    Sketcher.Constraint("Tangent", 30, 2, 27, 1),
    Sketcher.Constraint("Tangent", 32, 2, 33, 1),
    Sketcher.Constraint("Tangent", 33, 2, 34, 1),
    Sketcher.Constraint("Tangent", 34, 2, 35, 1),
    Sketcher.Constraint("Tangent", 35, 2, 32, 1),
    Sketcher.Constraint("Tangent", 36, 2, 37, 1),
    Sketcher.Constraint("Tangent", 37, 2, 38, 1),
    Sketcher.Constraint("Tangent", 38, 2, 39, 1),
    Sketcher.Constraint("Tangent", 39, 2, 36, 1),
    Sketcher.Constraint("Tangent", 40, 2, 41, 1),
    Sketcher.Constraint("Tangent", 41, 2, 42, 1),
    Sketcher.Constraint("Tangent", 42, 2, 43, 1),
    Sketcher.Constraint("Tangent", 43, 2, 40, 1),
    Sketcher.Constraint("Tangent", 44, 2, 45, 1),
    Sketcher.Constraint("Tangent", 45, 2, 46, 1),
    Sketcher.Constraint("Tangent", 46, 2, 47, 1),
    Sketcher.Constraint("Tangent", 47, 2, 44, 1),
    Sketcher.Constraint("Tangent", 49, 2, 50, 1),
    Sketcher.Constraint("Tangent", 50, 2, 51, 1),
    Sketcher.Constraint("Tangent", 51, 2, 52, 2),
    Sketcher.Constraint("Tangent", 52, 1, 49, 1),
    Sketcher.Constraint("Coincident", 53, 1, 54, 1),
    Sketcher.Constraint("Tangent", 54, 2, 55, 1),
    Sketcher.Constraint("Tangent", 55, 2, 56, 1),
    Sketcher.Constraint("Coincident", 56, 2, 57, 1),
    Sketcher.Constraint("Coincident", 57, 2, 53, 2),
    Sketcher.Constraint("Tangent", 58, 2, 59, 1),
    Sketcher.Constraint("Tangent", 59, 2, 60, 1),
    Sketcher.Constraint("Tangent", 60, 2, 61, 2),
    Sketcher.Constraint("Tangent", 61, 1, 58, 1),
    Sketcher.Constraint("Tangent", 62, 2, 63, 1),
    Sketcher.Constraint("Tangent", 63, 2, 64, 1),
    Sketcher.Constraint("Tangent", 64, 2, 65, 2),
    Sketcher.Constraint("Tangent", 65, 1, 62, 1),
    Sketcher.Constraint("Coincident", 66, 2, 67, 2),
    Sketcher.Constraint("Coincident", 67, 1, 68, 1),
    Sketcher.Constraint("Coincident", 68, 2, 69, 1),
    Sketcher.Constraint("Tangent", 69, 2, 70, 1),
    Sketcher.Constraint("Tangent", 70, 2, 66, 1),
    Sketcher.Constraint("Tangent", 71, 1, 72, 1),
    Sketcher.Constraint("Tangent", 72, 2, 73, 1),
    Sketcher.Constraint("Tangent", 73, 2, 74, 1),
    Sketcher.Constraint("Tangent", 74, 2, 71, 2),
    Sketcher.Constraint("Tangent", 76, 1, 77, 1),
    Sketcher.Constraint("Tangent", 77, 2, 78, 1),
    Sketcher.Constraint("Tangent", 78, 2, 79, 1),
    Sketcher.Constraint("Tangent", 79, 2, 76, 2),
    Sketcher.Constraint("Tangent", 80, 2, 81, 2),
    Sketcher.Constraint("Tangent", 81, 1, 82, 1),
    Sketcher.Constraint("Tangent", 82, 2, 83, 1),
    Sketcher.Constraint("Tangent", 83, 2, 80, 1),
    Sketcher.Constraint("Coincident", 3, 3, -1, 1),
    Sketcher.Constraint("Coincident", 50, 3, -1, 1),
    Sketcher.Constraint("Coincident", 52, 3, -1, 1),
    Sketcher.Constraint("Coincident", 56, 3, -1, 1),
    Sketcher.Constraint("Coincident", 59, 3, -1, 1),
    Sketcher.Constraint("Coincident", 61, 3, -1, 1),
    Sketcher.Constraint("Coincident", 63, 3, -1, 1),
    Sketcher.Constraint("Coincident", 65, 3, -1, 1),
    Sketcher.Constraint("Coincident", 69, 3, -1, 1),
    Sketcher.Constraint("Coincident", 71, 3, -1, 1),
    Sketcher.Constraint("Coincident", 73, 3, -1, 1),
    Sketcher.Constraint("Coincident", 76, 3, -1, 1),
    Sketcher.Constraint("Coincident", 78, 3, -1, 1),
    Sketcher.Constraint("Coincident", 81, 3, -1, 1),
    Sketcher.Constraint("Coincident", 83, 3, -1, 1),
    Sketcher.Constraint("Coincident", 31, 3, 0, 3),
    Sketcher.Constraint("Coincident", 53, 3, 0, 3),
    Sketcher.Constraint("Coincident", 67, 3, 0, 3),
    Sketcher.Constraint("Equal", 2, 4),
    Sketcher.Constraint("Equal", 6, 8),
    Sketcher.Constraint("Equal", 11, 13),
    Sketcher.Constraint("Equal", 8, 15),
    Sketcher.Constraint("Equal", 15, 17),
    Sketcher.Constraint("Equal", 13, 19),
    Sketcher.Constraint("Equal", 19, 21),
    Sketcher.Constraint("Equal", 21, 23),
    Sketcher.Constraint("Equal", 23, 25),
    Sketcher.Constraint("Equal", 17, 26),
    Sketcher.Constraint("Equal", 26, 27),
    Sketcher.Constraint("Equal", 27, 29),
    Sketcher.Constraint("Equal", 29, 33),
    Sketcher.Constraint("Equal", 33, 35),
    Sketcher.Constraint("Equal", 25, 36),
    Sketcher.Constraint("Equal", 36, 38),
    Sketcher.Constraint("Equal", 38, 40),
    Sketcher.Constraint("Equal", 40, 42),
    Sketcher.Constraint("Equal", 42, 44),
    Sketcher.Constraint("Equal", 44, 46),
    Sketcher.Constraint("Equal", 35, 48),
    Sketcher.Constraint("Equal", 46, 49),
    Sketcher.Constraint("Equal", 0, 53),
    Sketcher.Constraint("Equal", 4, 55),
    Sketcher.Constraint("Equal", 51, 58),
    Sketcher.Constraint("Equal", 50, 59),
    Sketcher.Constraint("Equal", 60, 62),
    Sketcher.Constraint("Equal", 59, 63),
    Sketcher.Constraint("Equal", 53, 67),
    Sketcher.Constraint("Equal", 56, 69),
    Sketcher.Constraint("Equal", 55, 70),
    Sketcher.Constraint("Equal", 65, 71),
    Sketcher.Constraint("Equal", 64, 72),
    Sketcher.Constraint("Equal", 48, 75),
    Sketcher.Constraint("Equal", 71, 76),
    Sketcher.Constraint("Equal", 74, 77),
    Sketcher.Constraint("Equal", 79, 80),
    Sketcher.Constraint("Equal", 76, 81),
    Sketcher.Constraint("Symmetric", 13, 3, 36, 3, -2),
    Sketcher.Constraint("Symmetric", 11, 3, 38, 3, -2),
    Sketcher.Constraint("Symmetric", 21, 3, 40, 3, -2),
    Sketcher.Constraint("Symmetric", 19, 3, 42, 3, -2),
    Sketcher.Constraint("Symmetric", 25, 3, 44, 3, -2),
    Sketcher.Constraint("Symmetric", 23, 3, 46, 3, -2),
    Sketcher.Constraint("Symmetric", 26, 3, 48, 3, -2),
    Sketcher.Constraint("Symmetric", 1, 2, 4, 1, -2),
    Sketcher.Constraint("Symmetric", 54, 2, 70, 2, -2),
    Sketcher.Constraint("PointOnObject", 75, 3, -2),
    Sketcher.Constraint("Parallel", 5, 10),
    Sketcher.Constraint("Perpendicular", 9, 14),
    Sketcher.Constraint("Parallel", 12, 18),
    Sketcher.Constraint("Parallel", 20, 22),
    Sketcher.Constraint("Parallel", 16, 28),
    Sketcher.Constraint("Perpendicular", 30, 32),
    Sketcher.Constraint("Parallel", 24, 54),
    Sketcher.Constraint("Horizontal", 0, 3, 13, 3),
    Sketcher.Constraint("Horizontal", 51, 3, 72, 3),
    Sketcher.Constraint("Horizontal", 49, 3, 74, 3),
    Sketcher.Constraint("Horizontal", 64, 3, 77, 3),
    Sketcher.Constraint("Horizontal", 62, 3, 79, 3),
    Sketcher.Constraint("Horizontal", 58, 3, 80, 3),
    Sketcher.Constraint("Horizontal", 60, 3, 82, 3),
    Sketcher.Constraint("Horizontal", 57, 2, 67, 1),
    Sketcher.Constraint("Horizontal", 56, 2, 68, 2),
    Sketcher.Constraint("Equal", 12, 18),
    Sketcher.Constraint("Equal", 20, 22),
    Sketcher.Constraint("Equal", 16, 28),
    Sketcher.Constraint("Equal", 9, 32),
    Sketcher.Constraint("Radius", 0, 15.0),
    Sketcher.Constraint("Radius", 2, 5.0),
    Sketcher.Constraint("Diameter", 26, 3.1),
    Sketcher.Constraint("Diameter", 31, 8.8),
    Sketcher.Constraint("Radius", 11, 2.3),
    Sketcher.Constraint("Angle", 1, Q("-30 deg")),
    Sketcher.Constraint("Angle", 7, Q("-45 deg")),
    Sketcher.Constraint("Distance", 10, 28.0),
    Sketcher.Constraint("DistanceX", 13, 3, -1, 1, 19.0),
    Sketcher.Constraint("Angle", 57, Q("91.2 deg")),
    Sketcher.Constraint("DistanceX", 57, 2, -1, 1, 5.5),
    Sketcher.Constraint("Distance", 7, 1.15),
    Sketcher.Constraint("Distance", 14, 2.15),
    Sketcher.Constraint("Radius", 3, 157.320508),
    Sketcher.Constraint("Radius", 50, 154.120508),
    Sketcher.Constraint("Radius", 56, 146.320508),
    Sketcher.Constraint("DistanceX", 17, 2, -1, 1, 6.965002),
    Sketcher.Constraint("DistanceX", -1, 1, 27, 2, 6.965002),
    Sketcher.Constraint("DistanceY", 54, 2, -1, 1, 79.732202),
    Sketcher.Constraint("DistanceY", 58, 2, -1, 1, 124.607802),
    Sketcher.Constraint("DistanceX", 59, 2, -1, 1, 62.564799),
    Sketcher.Constraint("Distance", 1, 143.578168),
    Sketcher.Constraint("DistanceX", 6, 3, -1, 1, 6.151829),
    Sketcher.Constraint("DistanceY", 6, 3, -1, 1, 11.168679),
    Sketcher.Constraint("DistanceX", 19, 3, -1, 1, 75.291651),
    Sketcher.Constraint("DistanceY", 19, 3, -1, 1, 49.820508),
    Sketcher.Constraint("DistanceX", 23, 3, -1, 1, 107.334591),
    Sketcher.Constraint("DistanceY", 23, 3, -1, 1, 68.320508),
    Sketcher.Constraint("DistanceX", 26, 3, -1, 1, 128.644111),
    Sketcher.Constraint("DistanceY", 27, 3, -1, 1, 11.451522),
    Sketcher.Constraint("DistanceX", -1, 1, 35, 3, 6.151829),
    Sketcher.Constraint("DistanceX", 51, 3, -1, 1, 97.28746),
    Sketcher.Constraint("DistanceY", 64, 3, -1, 1, 150.32485),
    Sketcher.Constraint("DistanceY", 75, 3, -1, 1, 151.820508),
    Sketcher.Constraint("DistanceY", 14, 2, -1, 1, 23.613758),
    Sketcher.Constraint("DistanceY", 32, 2, -1, 1, 21.563149),
    Sketcher.Constraint("DistanceY", 49, 2, -1, 1, 94.99004),
    Sketcher.Constraint("DistanceY", 65, 1, -1, 1, 140.370691),
    Sketcher.Constraint("DistanceY", 26, 3, -1, 1, 80.623565),
])
sketch1.setExpression("Constraints[166]", "Params.sketch1_radius")
sketch1.setExpression("Constraints[167]", "Params.sketch1_radius2")
sketch1.setExpression("Constraints[168]", "Params.sketch1_diameter")
sketch1.setExpression("Constraints[169]", "Params.sketch1_diameter2")
sketch1.setExpression("Constraints[170]", "Params.sketch1_radius3")
pad1 = doc.addObject("PartDesign::Pad", "Pad")
body.addObject(pad1)
pad1.Profile = sketch1
pad1.setExpression("Length", "Params.pad1_length")
pad1.Reversed = True
doc.recompute()

fillet = doc.addObject("PartDesign::Fillet", "Fillet")
body.addObject(fillet)
fillet.Base = (pad1, edges_at(pad1, [(3.091, 0.6, -146.288), (-3.091, 0.6, -146.288)]))
fillet.setExpression("Radius", "Params.fillet_radius")

doc.recompute()
